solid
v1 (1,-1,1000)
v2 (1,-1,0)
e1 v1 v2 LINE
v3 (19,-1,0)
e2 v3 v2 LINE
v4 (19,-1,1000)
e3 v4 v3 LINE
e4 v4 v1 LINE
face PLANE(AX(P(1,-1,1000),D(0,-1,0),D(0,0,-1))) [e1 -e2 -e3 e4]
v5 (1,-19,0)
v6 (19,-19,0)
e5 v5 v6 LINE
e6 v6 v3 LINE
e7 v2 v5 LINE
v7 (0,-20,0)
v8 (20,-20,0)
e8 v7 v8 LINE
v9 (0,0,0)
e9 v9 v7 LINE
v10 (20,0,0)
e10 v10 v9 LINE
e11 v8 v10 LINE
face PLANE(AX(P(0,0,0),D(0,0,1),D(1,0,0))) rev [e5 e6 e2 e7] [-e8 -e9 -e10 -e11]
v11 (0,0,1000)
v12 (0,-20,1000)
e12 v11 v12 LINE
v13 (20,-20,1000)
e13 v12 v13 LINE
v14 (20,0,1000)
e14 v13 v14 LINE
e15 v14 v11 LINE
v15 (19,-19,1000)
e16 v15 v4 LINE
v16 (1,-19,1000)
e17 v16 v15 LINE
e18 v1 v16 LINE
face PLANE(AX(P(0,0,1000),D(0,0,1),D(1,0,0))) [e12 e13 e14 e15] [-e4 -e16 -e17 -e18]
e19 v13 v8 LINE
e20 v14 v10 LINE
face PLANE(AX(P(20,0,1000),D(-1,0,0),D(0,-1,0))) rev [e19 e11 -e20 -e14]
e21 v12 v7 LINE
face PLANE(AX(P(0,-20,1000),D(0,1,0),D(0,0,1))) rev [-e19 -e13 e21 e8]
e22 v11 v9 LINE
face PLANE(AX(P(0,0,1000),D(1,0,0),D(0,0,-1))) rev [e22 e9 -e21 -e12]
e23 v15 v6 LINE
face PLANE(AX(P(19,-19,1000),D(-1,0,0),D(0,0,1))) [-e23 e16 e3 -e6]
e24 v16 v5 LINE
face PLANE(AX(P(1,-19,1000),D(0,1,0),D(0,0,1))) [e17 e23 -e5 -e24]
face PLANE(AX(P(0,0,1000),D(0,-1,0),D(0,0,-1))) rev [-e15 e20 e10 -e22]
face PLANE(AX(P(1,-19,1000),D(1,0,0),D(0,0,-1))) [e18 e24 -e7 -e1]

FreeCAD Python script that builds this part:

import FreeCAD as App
import Part
import Sketcher

V = App.Vector

doc = App.newDocument("Part")
body = doc.addObject("PartDesign::Body", "Body")

sketch1 = body.newObject("Sketcher::SketchObject", "Sketch")
sketch1.AttachmentSupport = (doc.getObject("XY_Plane"), [""])
sketch1.MapMode = "FlatFace"
sketch1.addGeometry(Part.LineSegment(V(0, 0, 0), V(0, -20, 0)), False)
sketch1.addGeometry(Part.LineSegment(V(0, -20, 0), V(20, -20, 0)), False)
sketch1.addGeometry(Part.LineSegment(V(20, -20, 0), V(20, 0, 0)), False)
sketch1.addGeometry(Part.LineSegment(V(20, 0, 0), V(0, 0, 0)), False)
sketch1.addGeometry(Part.LineSegment(V(19, -19, 0), V(1, -19, 0)), False)
sketch1.addGeometry(Part.LineSegment(V(1, -19, 0), V(1, -1, 0)), False)
sketch1.addGeometry(Part.LineSegment(V(1, -1, 0), V(19, -1, 0)), False)
sketch1.addGeometry(Part.LineSegment(V(19, -1, 0), V(19, -19, 0)), False)
sketch1.addConstraint(Sketcher.Constraint("Coincident", 0, 2, 1, 1))
sketch1.addConstraint(Sketcher.Constraint("Coincident", 1, 2, 2, 1))
sketch1.addConstraint(Sketcher.Constraint("Coincident", 2, 2, 3, 1))
sketch1.addConstraint(Sketcher.Constraint("Coincident", 3, 2, 0, 1))
sketch1.addConstraint(Sketcher.Constraint("Coincident", 4, 2, 5, 1))
sketch1.addConstraint(Sketcher.Constraint("Coincident", 5, 2, 6, 1))
sketch1.addConstraint(Sketcher.Constraint("Coincident", 6, 2, 7, 1))
sketch1.addConstraint(Sketcher.Constraint("Coincident", 7, 2, 4, 1))
sketch1.addConstraint(Sketcher.Constraint("Vertical", 0))
sketch1.addConstraint(Sketcher.Constraint("Horizontal", 1))
sketch1.addConstraint(Sketcher.Constraint("Vertical", 2))
sketch1.addConstraint(Sketcher.Constraint("Horizontal", 3))
sketch1.addConstraint(Sketcher.Constraint("Horizontal", 4))
sketch1.addConstraint(Sketcher.Constraint("Vertical", 5))
sketch1.addConstraint(Sketcher.Constraint("Horizontal", 6))
sketch1.addConstraint(Sketcher.Constraint("Vertical", 7))
sketch1.addConstraint(Sketcher.Constraint("Coincident", 3, 2, -1, 1))
sketch1.addConstraint(Sketcher.Constraint("Equal", 3, 0))
sketch1.addConstraint(Sketcher.Constraint("Equal", 6, 5))
sketch1.addConstraint(Sketcher.Constraint("DistanceX", 1, 1, 1, 2, 20.0))
sketch1.addConstraint(Sketcher.Constraint("DistanceX", 4, 2, 4, 1, 18.0))
sketch1.addConstraint(Sketcher.Constraint("DistanceX", -1, 1, 4, 2, 1.0))
sketch1.addConstraint(Sketcher.Constraint("DistanceY", 4, 2, -1, 1, 19.0))
pad1 = body.newObject("PartDesign::Pad", "Pad")
pad1.Profile = sketch1
pad1.Length = 1000

doc.recompute()
